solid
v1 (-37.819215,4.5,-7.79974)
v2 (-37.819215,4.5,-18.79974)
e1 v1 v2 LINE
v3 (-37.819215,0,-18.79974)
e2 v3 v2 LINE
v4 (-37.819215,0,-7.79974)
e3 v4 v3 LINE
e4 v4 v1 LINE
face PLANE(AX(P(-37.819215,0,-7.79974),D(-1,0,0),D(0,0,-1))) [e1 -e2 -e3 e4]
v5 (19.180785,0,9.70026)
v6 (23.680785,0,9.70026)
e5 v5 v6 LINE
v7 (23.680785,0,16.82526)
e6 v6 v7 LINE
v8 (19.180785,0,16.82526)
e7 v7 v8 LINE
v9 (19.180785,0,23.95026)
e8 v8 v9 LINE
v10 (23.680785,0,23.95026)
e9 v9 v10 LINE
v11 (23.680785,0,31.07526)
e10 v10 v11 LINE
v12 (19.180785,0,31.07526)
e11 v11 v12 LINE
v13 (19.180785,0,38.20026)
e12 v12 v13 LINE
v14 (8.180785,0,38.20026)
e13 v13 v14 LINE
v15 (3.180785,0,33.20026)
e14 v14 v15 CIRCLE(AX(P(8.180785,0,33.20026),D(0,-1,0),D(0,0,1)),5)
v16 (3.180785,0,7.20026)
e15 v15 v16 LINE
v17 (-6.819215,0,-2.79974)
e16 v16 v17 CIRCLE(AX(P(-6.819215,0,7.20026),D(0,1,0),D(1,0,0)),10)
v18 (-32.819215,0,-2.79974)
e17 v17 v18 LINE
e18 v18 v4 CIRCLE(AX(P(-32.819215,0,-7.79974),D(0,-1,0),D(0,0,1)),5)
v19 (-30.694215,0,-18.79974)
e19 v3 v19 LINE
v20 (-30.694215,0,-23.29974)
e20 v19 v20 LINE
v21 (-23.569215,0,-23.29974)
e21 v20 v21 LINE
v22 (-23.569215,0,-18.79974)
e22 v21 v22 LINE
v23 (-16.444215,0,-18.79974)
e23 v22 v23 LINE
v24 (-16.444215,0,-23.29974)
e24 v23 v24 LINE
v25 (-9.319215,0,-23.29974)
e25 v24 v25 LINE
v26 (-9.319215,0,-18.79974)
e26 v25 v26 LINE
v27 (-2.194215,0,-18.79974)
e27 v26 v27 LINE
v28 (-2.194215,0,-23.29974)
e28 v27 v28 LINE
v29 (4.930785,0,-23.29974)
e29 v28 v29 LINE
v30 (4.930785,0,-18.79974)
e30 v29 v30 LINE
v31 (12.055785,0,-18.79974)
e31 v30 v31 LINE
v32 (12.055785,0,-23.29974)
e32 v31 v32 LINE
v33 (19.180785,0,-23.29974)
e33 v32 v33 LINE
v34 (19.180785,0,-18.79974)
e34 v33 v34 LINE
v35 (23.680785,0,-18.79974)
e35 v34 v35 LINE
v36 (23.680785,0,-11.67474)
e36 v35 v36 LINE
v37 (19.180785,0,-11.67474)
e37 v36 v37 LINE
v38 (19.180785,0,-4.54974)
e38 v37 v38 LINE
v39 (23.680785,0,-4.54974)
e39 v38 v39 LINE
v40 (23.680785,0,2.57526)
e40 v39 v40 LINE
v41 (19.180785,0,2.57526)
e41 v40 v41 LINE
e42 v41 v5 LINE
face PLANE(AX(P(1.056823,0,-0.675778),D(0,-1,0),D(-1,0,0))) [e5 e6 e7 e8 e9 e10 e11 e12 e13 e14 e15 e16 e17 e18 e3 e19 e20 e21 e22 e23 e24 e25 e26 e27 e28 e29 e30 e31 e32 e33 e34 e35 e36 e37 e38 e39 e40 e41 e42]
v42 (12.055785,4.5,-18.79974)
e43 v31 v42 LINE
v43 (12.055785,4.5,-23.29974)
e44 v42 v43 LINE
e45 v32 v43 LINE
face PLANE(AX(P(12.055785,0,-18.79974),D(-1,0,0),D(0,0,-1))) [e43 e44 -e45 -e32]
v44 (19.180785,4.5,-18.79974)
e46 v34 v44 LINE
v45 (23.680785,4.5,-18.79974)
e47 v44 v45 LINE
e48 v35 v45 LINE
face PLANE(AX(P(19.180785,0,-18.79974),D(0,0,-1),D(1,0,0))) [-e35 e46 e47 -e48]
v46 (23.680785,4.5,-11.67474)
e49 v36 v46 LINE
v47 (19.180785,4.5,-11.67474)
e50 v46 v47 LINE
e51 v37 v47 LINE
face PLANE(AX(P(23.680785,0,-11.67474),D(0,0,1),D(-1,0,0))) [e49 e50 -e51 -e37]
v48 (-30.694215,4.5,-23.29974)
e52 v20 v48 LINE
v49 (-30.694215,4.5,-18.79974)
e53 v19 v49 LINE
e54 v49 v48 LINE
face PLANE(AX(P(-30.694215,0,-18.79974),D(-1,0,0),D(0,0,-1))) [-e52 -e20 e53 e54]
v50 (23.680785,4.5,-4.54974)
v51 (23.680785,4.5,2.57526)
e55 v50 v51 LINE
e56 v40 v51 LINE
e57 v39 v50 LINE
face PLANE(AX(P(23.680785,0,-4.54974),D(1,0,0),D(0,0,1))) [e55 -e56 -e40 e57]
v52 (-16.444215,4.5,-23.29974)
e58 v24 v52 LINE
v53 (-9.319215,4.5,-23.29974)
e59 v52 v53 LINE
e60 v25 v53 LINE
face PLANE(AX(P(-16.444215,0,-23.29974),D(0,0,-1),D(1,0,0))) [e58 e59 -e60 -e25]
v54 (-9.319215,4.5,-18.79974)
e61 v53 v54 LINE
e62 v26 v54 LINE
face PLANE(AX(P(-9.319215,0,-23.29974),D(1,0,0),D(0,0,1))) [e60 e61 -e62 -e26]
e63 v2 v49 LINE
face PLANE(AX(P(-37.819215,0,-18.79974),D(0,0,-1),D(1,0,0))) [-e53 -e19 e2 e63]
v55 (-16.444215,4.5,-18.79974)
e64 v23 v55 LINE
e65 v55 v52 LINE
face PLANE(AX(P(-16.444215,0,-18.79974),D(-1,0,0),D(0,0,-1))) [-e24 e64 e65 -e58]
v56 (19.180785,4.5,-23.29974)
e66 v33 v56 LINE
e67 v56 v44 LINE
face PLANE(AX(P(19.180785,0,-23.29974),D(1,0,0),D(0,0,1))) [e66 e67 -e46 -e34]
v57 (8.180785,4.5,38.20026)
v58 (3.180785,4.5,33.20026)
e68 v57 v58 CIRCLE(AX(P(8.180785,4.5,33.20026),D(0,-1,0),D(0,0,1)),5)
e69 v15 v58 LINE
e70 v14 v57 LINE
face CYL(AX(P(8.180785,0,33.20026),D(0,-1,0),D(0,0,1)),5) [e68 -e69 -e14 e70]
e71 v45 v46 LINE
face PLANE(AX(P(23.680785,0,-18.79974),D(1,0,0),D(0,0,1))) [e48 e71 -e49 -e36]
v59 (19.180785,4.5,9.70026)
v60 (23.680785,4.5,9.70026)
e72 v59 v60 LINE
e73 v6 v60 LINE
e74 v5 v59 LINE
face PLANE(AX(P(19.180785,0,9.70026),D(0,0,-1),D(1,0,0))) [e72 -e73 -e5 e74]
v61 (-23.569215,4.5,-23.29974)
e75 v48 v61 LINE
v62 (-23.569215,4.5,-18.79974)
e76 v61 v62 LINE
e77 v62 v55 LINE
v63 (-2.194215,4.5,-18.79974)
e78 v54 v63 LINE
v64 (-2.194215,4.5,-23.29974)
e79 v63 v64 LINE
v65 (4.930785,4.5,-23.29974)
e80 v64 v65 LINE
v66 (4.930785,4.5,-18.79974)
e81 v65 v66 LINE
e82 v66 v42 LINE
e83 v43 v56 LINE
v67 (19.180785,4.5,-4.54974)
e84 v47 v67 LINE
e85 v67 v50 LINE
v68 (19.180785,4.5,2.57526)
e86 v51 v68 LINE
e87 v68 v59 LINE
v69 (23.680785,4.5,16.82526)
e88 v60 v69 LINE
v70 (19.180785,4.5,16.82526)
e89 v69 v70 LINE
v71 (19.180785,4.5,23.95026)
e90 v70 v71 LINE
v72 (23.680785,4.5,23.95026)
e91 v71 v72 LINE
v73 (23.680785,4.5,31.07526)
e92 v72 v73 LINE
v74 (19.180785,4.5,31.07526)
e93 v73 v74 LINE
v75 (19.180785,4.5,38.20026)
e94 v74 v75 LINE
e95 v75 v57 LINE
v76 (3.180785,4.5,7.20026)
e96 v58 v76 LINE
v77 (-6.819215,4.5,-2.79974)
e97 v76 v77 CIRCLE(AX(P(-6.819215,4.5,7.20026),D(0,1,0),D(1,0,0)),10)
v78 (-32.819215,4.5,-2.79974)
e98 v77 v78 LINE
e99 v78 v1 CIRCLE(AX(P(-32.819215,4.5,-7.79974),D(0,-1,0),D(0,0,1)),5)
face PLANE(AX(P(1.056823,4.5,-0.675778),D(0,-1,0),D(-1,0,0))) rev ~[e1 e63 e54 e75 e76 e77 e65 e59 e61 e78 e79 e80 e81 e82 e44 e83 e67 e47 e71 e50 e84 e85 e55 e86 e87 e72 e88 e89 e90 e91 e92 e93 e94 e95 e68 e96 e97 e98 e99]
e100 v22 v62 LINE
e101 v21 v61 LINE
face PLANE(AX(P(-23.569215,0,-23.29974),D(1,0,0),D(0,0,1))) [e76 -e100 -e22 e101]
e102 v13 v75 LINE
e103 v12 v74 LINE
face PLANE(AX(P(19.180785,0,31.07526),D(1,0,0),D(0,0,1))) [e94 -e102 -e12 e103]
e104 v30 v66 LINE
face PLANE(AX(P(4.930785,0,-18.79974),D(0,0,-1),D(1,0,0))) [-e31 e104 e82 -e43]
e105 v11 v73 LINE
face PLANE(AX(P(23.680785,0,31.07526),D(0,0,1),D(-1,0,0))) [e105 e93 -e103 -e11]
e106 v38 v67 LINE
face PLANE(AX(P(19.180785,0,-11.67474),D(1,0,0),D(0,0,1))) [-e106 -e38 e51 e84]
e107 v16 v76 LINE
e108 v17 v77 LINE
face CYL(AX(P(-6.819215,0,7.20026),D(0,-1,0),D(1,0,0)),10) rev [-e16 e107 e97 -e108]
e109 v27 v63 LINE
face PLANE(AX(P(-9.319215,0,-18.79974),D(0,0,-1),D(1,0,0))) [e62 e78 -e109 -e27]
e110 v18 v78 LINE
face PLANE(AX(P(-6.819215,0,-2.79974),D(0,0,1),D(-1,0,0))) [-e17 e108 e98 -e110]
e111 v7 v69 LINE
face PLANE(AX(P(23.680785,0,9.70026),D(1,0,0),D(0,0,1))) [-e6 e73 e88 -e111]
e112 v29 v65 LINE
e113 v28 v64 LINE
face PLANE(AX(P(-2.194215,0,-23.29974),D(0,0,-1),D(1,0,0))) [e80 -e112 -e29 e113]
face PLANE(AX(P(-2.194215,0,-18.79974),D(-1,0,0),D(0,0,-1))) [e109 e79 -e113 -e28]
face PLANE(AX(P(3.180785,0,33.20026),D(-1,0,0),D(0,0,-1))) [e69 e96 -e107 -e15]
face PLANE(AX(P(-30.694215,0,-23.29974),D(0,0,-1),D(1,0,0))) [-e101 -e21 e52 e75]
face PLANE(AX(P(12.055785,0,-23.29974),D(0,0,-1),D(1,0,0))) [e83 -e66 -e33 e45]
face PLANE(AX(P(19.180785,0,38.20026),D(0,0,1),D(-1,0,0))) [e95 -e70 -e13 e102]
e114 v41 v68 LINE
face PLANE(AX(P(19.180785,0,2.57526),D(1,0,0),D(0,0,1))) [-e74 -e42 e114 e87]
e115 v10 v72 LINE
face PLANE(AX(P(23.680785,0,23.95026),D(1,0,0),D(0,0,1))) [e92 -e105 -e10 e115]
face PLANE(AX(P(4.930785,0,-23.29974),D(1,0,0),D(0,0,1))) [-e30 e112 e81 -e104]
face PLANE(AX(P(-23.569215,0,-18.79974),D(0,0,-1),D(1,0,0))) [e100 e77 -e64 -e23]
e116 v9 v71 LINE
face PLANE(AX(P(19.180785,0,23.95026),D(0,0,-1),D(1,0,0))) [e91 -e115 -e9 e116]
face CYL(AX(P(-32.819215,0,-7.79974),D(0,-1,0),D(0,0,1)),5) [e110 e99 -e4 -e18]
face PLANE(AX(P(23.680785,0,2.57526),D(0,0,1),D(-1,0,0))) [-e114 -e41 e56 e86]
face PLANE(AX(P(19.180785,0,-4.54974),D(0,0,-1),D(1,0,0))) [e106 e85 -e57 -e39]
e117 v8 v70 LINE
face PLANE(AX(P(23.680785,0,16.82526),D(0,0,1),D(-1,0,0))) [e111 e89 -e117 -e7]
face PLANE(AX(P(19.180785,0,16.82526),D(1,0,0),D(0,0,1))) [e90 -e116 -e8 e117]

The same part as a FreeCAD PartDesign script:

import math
import FreeCAD as App
import Part
import Sketcher

V = App.Vector

doc = App.newDocument("Part")
params = doc.addObject("Spreadsheet::Sheet", "Params")
for row, (alias, value) in enumerate([
    ("sketch1_radius", "5 mm"),
    ("sketch1_radius2", "10 mm"),
    ("sketch1_width", "26 mm"),
    ("sketch1_width2", "11 mm"),
    ("sketch1_width3", "4.5 mm"),
    ("pad1_length", "4.5 mm"),
], start=1):
    params.set(f"A{row}", alias)
    params.set(f"B{row}", "=" + value)
    params.setAlias(f"B{row}", alias)

body = doc.addObject("PartDesign::Body", "Body")

# Sketch on XZ plane
sketch1 = doc.addObject("Sketcher::SketchObject", "Sketch")
body.addObject(sketch1)
sketch1.AttachmentSupport = (doc.XZ_Plane, [""])
sketch1.MapMode = "FlatFace"
sketch1.addGeometry(Part.LineSegment(V(23.7, -11.7, 0), V(23.7, -18.8, 0)), False)
sketch1.addGeometry(Part.LineSegment(V(23.7, -18.8, 0), V(19.2, -18.8, 0)), False)
sketch1.addGeometry(Part.LineSegment(V(19.2, -18.8, 0), V(19.2, -23.3, 0)), False)
sketch1.addGeometry(Part.LineSegment(V(19.2, -23.3, 0), V(12.1, -23.3, 0)), False)
sketch1.addGeometry(Part.LineSegment(V(12.1, -23.3, 0), V(12.1, -18.8, 0)), False)
sketch1.addGeometry(Part.LineSegment(V(12.1, -18.8, 0), V(4.9, -18.8, 0)), False)
sketch1.addGeometry(Part.LineSegment(V(4.9, -18.8, 0), V(4.9, -23.3, 0)), False)
sketch1.addGeometry(Part.LineSegment(V(4.9, -23.3, 0), V(-2.2, -23.3, 0)), False)
sketch1.addGeometry(Part.LineSegment(V(-2.2, -23.3, 0), V(-2.2, -18.8, 0)), False)
sketch1.addGeometry(Part.LineSegment(V(-2.2, -18.8, 0), V(-9.3, -18.8, 0)), False)
sketch1.addGeometry(Part.LineSegment(V(-9.3, -18.8, 0), V(-9.3, -23.3, 0)), False)
sketch1.addGeometry(Part.LineSegment(V(-9.3, -23.3, 0), V(-16.4, -23.3, 0)), False)
sketch1.addGeometry(Part.LineSegment(V(-16.4, -23.3, 0), V(-16.4, -18.8, 0)), False)
sketch1.addGeometry(Part.LineSegment(V(-16.4, -18.8, 0), V(-23.6, -18.8, 0)), False)
sketch1.addGeometry(Part.LineSegment(V(-23.6, -18.8, 0), V(-23.6, -23.3, 0)), False)
sketch1.addGeometry(Part.LineSegment(V(-23.6, -23.3, 0), V(-30.7, -23.3, 0)), False)
sketch1.addGeometry(Part.LineSegment(V(-30.7, -23.3, 0), V(-30.7, -18.8, 0)), False)
sketch1.addGeometry(Part.LineSegment(V(-30.7, -18.8, 0), V(-37.8, -18.8, 0)), False)
sketch1.addGeometry(Part.LineSegment(V(-37.8, -18.8, 0), V(-37.8, -7.8, 0)), False)
sketch1.addGeometry(Part.ArcOfCircle(Part.Circle(V(-32.8, -7.8, 0), V(0, 0, 1), 5), math.radians(90), math.radians(180)), False)
sketch1.addGeometry(Part.LineSegment(V(-32.8, -2.8, 0), V(-6.8, -2.8, 0)), False)
sketch1.addGeometry(Part.ArcOfCircle(Part.Circle(V(-6.8, 7.2, 0), V(0, 0, 1), 10), math.radians(-90), math.radians(0)), False)
sketch1.addGeometry(Part.LineSegment(V(3.2, 7.2, 0), V(3.2, 33.2, 0)), False)
sketch1.addGeometry(Part.ArcOfCircle(Part.Circle(V(8.2, 33.2, 0), V(0, 0, 1), 5), math.radians(90), math.radians(180)), False)
sketch1.addGeometry(Part.LineSegment(V(8.2, 38.2, 0), V(19.2, 38.2, 0)), False)
sketch1.addGeometry(Part.LineSegment(V(19.2, 38.2, 0), V(19.2, 31.1, 0)), False)
sketch1.addGeometry(Part.LineSegment(V(19.2, 31.1, 0), V(23.7, 31.1, 0)), False)
sketch1.addGeometry(Part.LineSegment(V(23.7, 31.1, 0), V(23.7, 24, 0)), False)
sketch1.addGeometry(Part.LineSegment(V(23.7, 24, 0), V(19.2, 24, 0)), False)
sketch1.addGeometry(Part.LineSegment(V(19.2, 24, 0), V(19.2, 16.8, 0)), False)
sketch1.addGeometry(Part.LineSegment(V(19.2, 16.8, 0), V(23.7, 16.8, 0)), False)
sketch1.addGeometry(Part.LineSegment(V(23.7, 16.8, 0), V(23.7, 9.7, 0)), False)
sketch1.addGeometry(Part.LineSegment(V(23.7, 9.7, 0), V(19.2, 9.7, 0)), False)
sketch1.addGeometry(Part.LineSegment(V(19.2, 9.7, 0), V(19.2, 2.6, 0)), False)
sketch1.addGeometry(Part.LineSegment(V(19.2, 2.6, 0), V(23.7, 2.6, 0)), False)
sketch1.addGeometry(Part.LineSegment(V(23.7, 2.6, 0), V(23.7, -4.5, 0)), False)
sketch1.addGeometry(Part.LineSegment(V(23.7, -4.5, 0), V(19.2, -4.5, 0)), False)
sketch1.addGeometry(Part.LineSegment(V(19.2, -4.5, 0), V(19.2, -11.7, 0)), False)
sketch1.addGeometry(Part.LineSegment(V(19.2, -11.7, 0), V(23.7, -11.7, 0)), False)
sketch1.addConstraint(Sketcher.Constraint("Coincident", 0, 2, 1, 1))
sketch1.addConstraint(Sketcher.Constraint("Coincident", 1, 2, 2, 1))
sketch1.addConstraint(Sketcher.Constraint("Coincident", 2, 2, 3, 1))
sketch1.addConstraint(Sketcher.Constraint("Coincident", 3, 2, 4, 1))
sketch1.addConstraint(Sketcher.Constraint("Coincident", 4, 2, 5, 1))
sketch1.addConstraint(Sketcher.Constraint("Coincident", 5, 2, 6, 1))
sketch1.addConstraint(Sketcher.Constraint("Coincident", 6, 2, 7, 1))
sketch1.addConstraint(Sketcher.Constraint("Coincident", 7, 2, 8, 1))
sketch1.addConstraint(Sketcher.Constraint("Coincident", 8, 2, 9, 1))
sketch1.addConstraint(Sketcher.Constraint("Coincident", 9, 2, 10, 1))
sketch1.addConstraint(Sketcher.Constraint("Coincident", 10, 2, 11, 1))
sketch1.addConstraint(Sketcher.Constraint("Coincident", 11, 2, 12, 1))
sketch1.addConstraint(Sketcher.Constraint("Coincident", 12, 2, 13, 1))
sketch1.addConstraint(Sketcher.Constraint("Coincident", 13, 2, 14, 1))
sketch1.addConstraint(Sketcher.Constraint("Coincident", 14, 2, 15, 1))
sketch1.addConstraint(Sketcher.Constraint("Coincident", 15, 2, 16, 1))
sketch1.addConstraint(Sketcher.Constraint("Coincident", 16, 2, 17, 1))
sketch1.addConstraint(Sketcher.Constraint("Coincident", 17, 2, 18, 1))
sketch1.addConstraint(Sketcher.Constraint("Tangent", 18, 2, 19, 2))
sketch1.addConstraint(Sketcher.Constraint("Tangent", 19, 1, 20, 1))
sketch1.addConstraint(Sketcher.Constraint("Tangent", 20, 2, 21, 1))
sketch1.addConstraint(Sketcher.Constraint("Tangent", 21, 2, 22, 1))
sketch1.addConstraint(Sketcher.Constraint("Tangent", 22, 2, 23, 2))
sketch1.addConstraint(Sketcher.Constraint("Tangent", 23, 1, 24, 1))
sketch1.addConstraint(Sketcher.Constraint("Coincident", 24, 2, 25, 1))
sketch1.addConstraint(Sketcher.Constraint("Coincident", 25, 2, 26, 1))
sketch1.addConstraint(Sketcher.Constraint("Coincident", 26, 2, 27, 1))
sketch1.addConstraint(Sketcher.Constraint("Coincident", 27, 2, 28, 1))
sketch1.addConstraint(Sketcher.Constraint("Coincident", 28, 2, 29, 1))
sketch1.addConstraint(Sketcher.Constraint("Coincident", 29, 2, 30, 1))
sketch1.addConstraint(Sketcher.Constraint("Coincident", 30, 2, 31, 1))
sketch1.addConstraint(Sketcher.Constraint("Coincident", 31, 2, 32, 1))
sketch1.addConstraint(Sketcher.Constraint("Coincident", 32, 2, 33, 1))
sketch1.addConstraint(Sketcher.Constraint("Coincident", 33, 2, 34, 1))
sketch1.addConstraint(Sketcher.Constraint("Coincident", 34, 2, 35, 1))
sketch1.addConstraint(Sketcher.Constraint("Coincident", 35, 2, 36, 1))
sketch1.addConstraint(Sketcher.Constraint("Coincident", 36, 2, 37, 1))
sketch1.addConstraint(Sketcher.Constraint("Coincident", 37, 2, 38, 1))
sketch1.addConstraint(Sketcher.Constraint("Coincident", 38, 2, 0, 1))
sketch1.addConstraint(Sketcher.Constraint("Vertical", 0))
sketch1.addConstraint(Sketcher.Constraint("Horizontal", 1))
sketch1.addConstraint(Sketcher.Constraint("Vertical", 2))
sketch1.addConstraint(Sketcher.Constraint("Horizontal", 3))
sketch1.addConstraint(Sketcher.Constraint("Vertical", 4))
sketch1.addConstraint(Sketcher.Constraint("Horizontal", 5))
sketch1.addConstraint(Sketcher.Constraint("Vertical", 6))
sketch1.addConstraint(Sketcher.Constraint("Horizontal", 7))
sketch1.addConstraint(Sketcher.Constraint("Vertical", 8))
sketch1.addConstraint(Sketcher.Constraint("Horizontal", 9))
sketch1.addConstraint(Sketcher.Constraint("Vertical", 10))
sketch1.addConstraint(Sketcher.Constraint("Horizontal", 11))
sketch1.addConstraint(Sketcher.Constraint("Vertical", 12))
sketch1.addConstraint(Sketcher.Constraint("Horizontal", 13))
sketch1.addConstraint(Sketcher.Constraint("Vertical", 14))
sketch1.addConstraint(Sketcher.Constraint("Horizontal", 15))
sketch1.addConstraint(Sketcher.Constraint("Vertical", 16))
sketch1.addConstraint(Sketcher.Constraint("Horizontal", 17))
sketch1.addConstraint(Sketcher.Constraint("Vertical", 18))
sketch1.addConstraint(Sketcher.Constraint("Horizontal", 20))
sketch1.addConstraint(Sketcher.Constraint("Vertical", 22))
sketch1.addConstraint(Sketcher.Constraint("Horizontal", 24))
sketch1.addConstraint(Sketcher.Constraint("Vertical", 25))
sketch1.addConstraint(Sketcher.Constraint("Horizontal", 26))
sketch1.addConstraint(Sketcher.Constraint("Vertical", 27))
sketch1.addConstraint(Sketcher.Constraint("Horizontal", 28))
sketch1.addConstraint(Sketcher.Constraint("Vertical", 29))
sketch1.addConstraint(Sketcher.Constraint("Horizontal", 30))
sketch1.addConstraint(Sketcher.Constraint("Vertical", 31))
sketch1.addConstraint(Sketcher.Constraint("Horizontal", 32))
sketch1.addConstraint(Sketcher.Constraint("Vertical", 33))
sketch1.addConstraint(Sketcher.Constraint("Horizontal", 34))
sketch1.addConstraint(Sketcher.Constraint("Vertical", 35))
sketch1.addConstraint(Sketcher.Constraint("Horizontal", 36))
sketch1.addConstraint(Sketcher.Constraint("Vertical", 37))
sketch1.addConstraint(Sketcher.Constraint("Horizontal", 38))
sketch1.addConstraint(Sketcher.Constraint("Equal", 19, 23))
sketch1.addConstraint(Sketcher.Constraint("Horizontal", 1, 2, 4, 2))
sketch1.addConstraint(Sketcher.Constraint("Horizontal", 3, 2, 6, 2))
sketch1.addConstraint(Sketcher.Constraint("Horizontal", 5, 2, 8, 2))
sketch1.addConstraint(Sketcher.Constraint("Horizontal", 7, 2, 10, 2))
sketch1.addConstraint(Sketcher.Constraint("Horizontal", 9, 2, 12, 2))
sketch1.addConstraint(Sketcher.Constraint("Horizontal", 11, 2, 14, 2))
sketch1.addConstraint(Sketcher.Constraint("Horizontal", 13, 2, 16, 2))
sketch1.addConstraint(Sketcher.Constraint("Vertical", 2, 2, 24, 2))
sketch1.addConstraint(Sketcher.Constraint("Vertical", 0, 2, 26, 2))
sketch1.addConstraint(Sketcher.Constraint("Vertical", 25, 2, 28, 2))
sketch1.addConstraint(Sketcher.Constraint("Vertical", 27, 2, 30, 2))
sketch1.addConstraint(Sketcher.Constraint("Vertical", 29, 2, 32, 2))
sketch1.addConstraint(Sketcher.Constraint("Vertical", 31, 2, 34, 2))
sketch1.addConstraint(Sketcher.Constraint("Vertical", 33, 2, 36, 2))
sketch1.addConstraint(Sketcher.Constraint("Equal", 3, 5))
sketch1.addConstraint(Sketcher.Constraint("Equal", 5, 7))
sketch1.addConstraint(Sketcher.Constraint("Equal", 7, 9))
sketch1.addConstraint(Sketcher.Constraint("Equal", 9, 11))
sketch1.addConstraint(Sketcher.Constraint("Equal", 11, 13))
sketch1.addConstraint(Sketcher.Constraint("Equal", 13, 15))
sketch1.addConstraint(Sketcher.Constraint("Equal", 15, 17))
sketch1.addConstraint(Sketcher.Constraint("Equal", 17, 0))
sketch1.addConstraint(Sketcher.Constraint("Equal", 38, 2))
sketch1.addConstraint(Sketcher.Constraint("Equal", 24, 18))
sketch1.addConstraint(Sketcher.Constraint("Equal", 20, 22))
sketch1.addConstraint(Sketcher.Constraint("Equal", 0, 25))
sketch1.addConstraint(Sketcher.Constraint("Equal", 25, 27))
sketch1.addConstraint(Sketcher.Constraint("Equal", 27, 29))
sketch1.addConstraint(Sketcher.Constraint("Equal", 29, 31))
sketch1.addConstraint(Sketcher.Constraint("Equal", 31, 33))
sketch1.addConstraint(Sketcher.Constraint("Equal", 33, 35))
sketch1.addConstraint(Sketcher.Constraint("Radius", 19, 5.0))
sketch1.addConstraint(Sketcher.Constraint("Radius", 21, 10.0))
sketch1.addConstraint(Sketcher.Constraint("DistanceX", 20, 1, 20, 2, 26.0))
sketch1.addConstraint(Sketcher.Constraint("DistanceX", 24, 1, 24, 2, 11.0))
sketch1.addConstraint(Sketcher.Constraint("DistanceX", 1, 2, 1, 1, 4.5))
sketch1.addConstraint(Sketcher.Constraint("DistanceY", 19, 3, -1, 1, 7.79974))
sketch1.addConstraint(Sketcher.Constraint("DistanceX", 19, 3, -1, 1, 32.819215))
sketch1.setExpression("Constraints[107]", "Params.sketch1_radius")
sketch1.setExpression("Constraints[108]", "Params.sketch1_radius2")
sketch1.setExpression("Constraints[109]", "Params.sketch1_width")
sketch1.setExpression("Constraints[110]", "Params.sketch1_width2")
sketch1.setExpression("Constraints[111]", "Params.sketch1_width3")
pad1 = doc.addObject("PartDesign::Pad", "Pad")
body.addObject(pad1)
pad1.Profile = sketch1
pad1.setExpression("Length", "Params.pad1_length")
pad1.Reversed = True

doc.recompute()
